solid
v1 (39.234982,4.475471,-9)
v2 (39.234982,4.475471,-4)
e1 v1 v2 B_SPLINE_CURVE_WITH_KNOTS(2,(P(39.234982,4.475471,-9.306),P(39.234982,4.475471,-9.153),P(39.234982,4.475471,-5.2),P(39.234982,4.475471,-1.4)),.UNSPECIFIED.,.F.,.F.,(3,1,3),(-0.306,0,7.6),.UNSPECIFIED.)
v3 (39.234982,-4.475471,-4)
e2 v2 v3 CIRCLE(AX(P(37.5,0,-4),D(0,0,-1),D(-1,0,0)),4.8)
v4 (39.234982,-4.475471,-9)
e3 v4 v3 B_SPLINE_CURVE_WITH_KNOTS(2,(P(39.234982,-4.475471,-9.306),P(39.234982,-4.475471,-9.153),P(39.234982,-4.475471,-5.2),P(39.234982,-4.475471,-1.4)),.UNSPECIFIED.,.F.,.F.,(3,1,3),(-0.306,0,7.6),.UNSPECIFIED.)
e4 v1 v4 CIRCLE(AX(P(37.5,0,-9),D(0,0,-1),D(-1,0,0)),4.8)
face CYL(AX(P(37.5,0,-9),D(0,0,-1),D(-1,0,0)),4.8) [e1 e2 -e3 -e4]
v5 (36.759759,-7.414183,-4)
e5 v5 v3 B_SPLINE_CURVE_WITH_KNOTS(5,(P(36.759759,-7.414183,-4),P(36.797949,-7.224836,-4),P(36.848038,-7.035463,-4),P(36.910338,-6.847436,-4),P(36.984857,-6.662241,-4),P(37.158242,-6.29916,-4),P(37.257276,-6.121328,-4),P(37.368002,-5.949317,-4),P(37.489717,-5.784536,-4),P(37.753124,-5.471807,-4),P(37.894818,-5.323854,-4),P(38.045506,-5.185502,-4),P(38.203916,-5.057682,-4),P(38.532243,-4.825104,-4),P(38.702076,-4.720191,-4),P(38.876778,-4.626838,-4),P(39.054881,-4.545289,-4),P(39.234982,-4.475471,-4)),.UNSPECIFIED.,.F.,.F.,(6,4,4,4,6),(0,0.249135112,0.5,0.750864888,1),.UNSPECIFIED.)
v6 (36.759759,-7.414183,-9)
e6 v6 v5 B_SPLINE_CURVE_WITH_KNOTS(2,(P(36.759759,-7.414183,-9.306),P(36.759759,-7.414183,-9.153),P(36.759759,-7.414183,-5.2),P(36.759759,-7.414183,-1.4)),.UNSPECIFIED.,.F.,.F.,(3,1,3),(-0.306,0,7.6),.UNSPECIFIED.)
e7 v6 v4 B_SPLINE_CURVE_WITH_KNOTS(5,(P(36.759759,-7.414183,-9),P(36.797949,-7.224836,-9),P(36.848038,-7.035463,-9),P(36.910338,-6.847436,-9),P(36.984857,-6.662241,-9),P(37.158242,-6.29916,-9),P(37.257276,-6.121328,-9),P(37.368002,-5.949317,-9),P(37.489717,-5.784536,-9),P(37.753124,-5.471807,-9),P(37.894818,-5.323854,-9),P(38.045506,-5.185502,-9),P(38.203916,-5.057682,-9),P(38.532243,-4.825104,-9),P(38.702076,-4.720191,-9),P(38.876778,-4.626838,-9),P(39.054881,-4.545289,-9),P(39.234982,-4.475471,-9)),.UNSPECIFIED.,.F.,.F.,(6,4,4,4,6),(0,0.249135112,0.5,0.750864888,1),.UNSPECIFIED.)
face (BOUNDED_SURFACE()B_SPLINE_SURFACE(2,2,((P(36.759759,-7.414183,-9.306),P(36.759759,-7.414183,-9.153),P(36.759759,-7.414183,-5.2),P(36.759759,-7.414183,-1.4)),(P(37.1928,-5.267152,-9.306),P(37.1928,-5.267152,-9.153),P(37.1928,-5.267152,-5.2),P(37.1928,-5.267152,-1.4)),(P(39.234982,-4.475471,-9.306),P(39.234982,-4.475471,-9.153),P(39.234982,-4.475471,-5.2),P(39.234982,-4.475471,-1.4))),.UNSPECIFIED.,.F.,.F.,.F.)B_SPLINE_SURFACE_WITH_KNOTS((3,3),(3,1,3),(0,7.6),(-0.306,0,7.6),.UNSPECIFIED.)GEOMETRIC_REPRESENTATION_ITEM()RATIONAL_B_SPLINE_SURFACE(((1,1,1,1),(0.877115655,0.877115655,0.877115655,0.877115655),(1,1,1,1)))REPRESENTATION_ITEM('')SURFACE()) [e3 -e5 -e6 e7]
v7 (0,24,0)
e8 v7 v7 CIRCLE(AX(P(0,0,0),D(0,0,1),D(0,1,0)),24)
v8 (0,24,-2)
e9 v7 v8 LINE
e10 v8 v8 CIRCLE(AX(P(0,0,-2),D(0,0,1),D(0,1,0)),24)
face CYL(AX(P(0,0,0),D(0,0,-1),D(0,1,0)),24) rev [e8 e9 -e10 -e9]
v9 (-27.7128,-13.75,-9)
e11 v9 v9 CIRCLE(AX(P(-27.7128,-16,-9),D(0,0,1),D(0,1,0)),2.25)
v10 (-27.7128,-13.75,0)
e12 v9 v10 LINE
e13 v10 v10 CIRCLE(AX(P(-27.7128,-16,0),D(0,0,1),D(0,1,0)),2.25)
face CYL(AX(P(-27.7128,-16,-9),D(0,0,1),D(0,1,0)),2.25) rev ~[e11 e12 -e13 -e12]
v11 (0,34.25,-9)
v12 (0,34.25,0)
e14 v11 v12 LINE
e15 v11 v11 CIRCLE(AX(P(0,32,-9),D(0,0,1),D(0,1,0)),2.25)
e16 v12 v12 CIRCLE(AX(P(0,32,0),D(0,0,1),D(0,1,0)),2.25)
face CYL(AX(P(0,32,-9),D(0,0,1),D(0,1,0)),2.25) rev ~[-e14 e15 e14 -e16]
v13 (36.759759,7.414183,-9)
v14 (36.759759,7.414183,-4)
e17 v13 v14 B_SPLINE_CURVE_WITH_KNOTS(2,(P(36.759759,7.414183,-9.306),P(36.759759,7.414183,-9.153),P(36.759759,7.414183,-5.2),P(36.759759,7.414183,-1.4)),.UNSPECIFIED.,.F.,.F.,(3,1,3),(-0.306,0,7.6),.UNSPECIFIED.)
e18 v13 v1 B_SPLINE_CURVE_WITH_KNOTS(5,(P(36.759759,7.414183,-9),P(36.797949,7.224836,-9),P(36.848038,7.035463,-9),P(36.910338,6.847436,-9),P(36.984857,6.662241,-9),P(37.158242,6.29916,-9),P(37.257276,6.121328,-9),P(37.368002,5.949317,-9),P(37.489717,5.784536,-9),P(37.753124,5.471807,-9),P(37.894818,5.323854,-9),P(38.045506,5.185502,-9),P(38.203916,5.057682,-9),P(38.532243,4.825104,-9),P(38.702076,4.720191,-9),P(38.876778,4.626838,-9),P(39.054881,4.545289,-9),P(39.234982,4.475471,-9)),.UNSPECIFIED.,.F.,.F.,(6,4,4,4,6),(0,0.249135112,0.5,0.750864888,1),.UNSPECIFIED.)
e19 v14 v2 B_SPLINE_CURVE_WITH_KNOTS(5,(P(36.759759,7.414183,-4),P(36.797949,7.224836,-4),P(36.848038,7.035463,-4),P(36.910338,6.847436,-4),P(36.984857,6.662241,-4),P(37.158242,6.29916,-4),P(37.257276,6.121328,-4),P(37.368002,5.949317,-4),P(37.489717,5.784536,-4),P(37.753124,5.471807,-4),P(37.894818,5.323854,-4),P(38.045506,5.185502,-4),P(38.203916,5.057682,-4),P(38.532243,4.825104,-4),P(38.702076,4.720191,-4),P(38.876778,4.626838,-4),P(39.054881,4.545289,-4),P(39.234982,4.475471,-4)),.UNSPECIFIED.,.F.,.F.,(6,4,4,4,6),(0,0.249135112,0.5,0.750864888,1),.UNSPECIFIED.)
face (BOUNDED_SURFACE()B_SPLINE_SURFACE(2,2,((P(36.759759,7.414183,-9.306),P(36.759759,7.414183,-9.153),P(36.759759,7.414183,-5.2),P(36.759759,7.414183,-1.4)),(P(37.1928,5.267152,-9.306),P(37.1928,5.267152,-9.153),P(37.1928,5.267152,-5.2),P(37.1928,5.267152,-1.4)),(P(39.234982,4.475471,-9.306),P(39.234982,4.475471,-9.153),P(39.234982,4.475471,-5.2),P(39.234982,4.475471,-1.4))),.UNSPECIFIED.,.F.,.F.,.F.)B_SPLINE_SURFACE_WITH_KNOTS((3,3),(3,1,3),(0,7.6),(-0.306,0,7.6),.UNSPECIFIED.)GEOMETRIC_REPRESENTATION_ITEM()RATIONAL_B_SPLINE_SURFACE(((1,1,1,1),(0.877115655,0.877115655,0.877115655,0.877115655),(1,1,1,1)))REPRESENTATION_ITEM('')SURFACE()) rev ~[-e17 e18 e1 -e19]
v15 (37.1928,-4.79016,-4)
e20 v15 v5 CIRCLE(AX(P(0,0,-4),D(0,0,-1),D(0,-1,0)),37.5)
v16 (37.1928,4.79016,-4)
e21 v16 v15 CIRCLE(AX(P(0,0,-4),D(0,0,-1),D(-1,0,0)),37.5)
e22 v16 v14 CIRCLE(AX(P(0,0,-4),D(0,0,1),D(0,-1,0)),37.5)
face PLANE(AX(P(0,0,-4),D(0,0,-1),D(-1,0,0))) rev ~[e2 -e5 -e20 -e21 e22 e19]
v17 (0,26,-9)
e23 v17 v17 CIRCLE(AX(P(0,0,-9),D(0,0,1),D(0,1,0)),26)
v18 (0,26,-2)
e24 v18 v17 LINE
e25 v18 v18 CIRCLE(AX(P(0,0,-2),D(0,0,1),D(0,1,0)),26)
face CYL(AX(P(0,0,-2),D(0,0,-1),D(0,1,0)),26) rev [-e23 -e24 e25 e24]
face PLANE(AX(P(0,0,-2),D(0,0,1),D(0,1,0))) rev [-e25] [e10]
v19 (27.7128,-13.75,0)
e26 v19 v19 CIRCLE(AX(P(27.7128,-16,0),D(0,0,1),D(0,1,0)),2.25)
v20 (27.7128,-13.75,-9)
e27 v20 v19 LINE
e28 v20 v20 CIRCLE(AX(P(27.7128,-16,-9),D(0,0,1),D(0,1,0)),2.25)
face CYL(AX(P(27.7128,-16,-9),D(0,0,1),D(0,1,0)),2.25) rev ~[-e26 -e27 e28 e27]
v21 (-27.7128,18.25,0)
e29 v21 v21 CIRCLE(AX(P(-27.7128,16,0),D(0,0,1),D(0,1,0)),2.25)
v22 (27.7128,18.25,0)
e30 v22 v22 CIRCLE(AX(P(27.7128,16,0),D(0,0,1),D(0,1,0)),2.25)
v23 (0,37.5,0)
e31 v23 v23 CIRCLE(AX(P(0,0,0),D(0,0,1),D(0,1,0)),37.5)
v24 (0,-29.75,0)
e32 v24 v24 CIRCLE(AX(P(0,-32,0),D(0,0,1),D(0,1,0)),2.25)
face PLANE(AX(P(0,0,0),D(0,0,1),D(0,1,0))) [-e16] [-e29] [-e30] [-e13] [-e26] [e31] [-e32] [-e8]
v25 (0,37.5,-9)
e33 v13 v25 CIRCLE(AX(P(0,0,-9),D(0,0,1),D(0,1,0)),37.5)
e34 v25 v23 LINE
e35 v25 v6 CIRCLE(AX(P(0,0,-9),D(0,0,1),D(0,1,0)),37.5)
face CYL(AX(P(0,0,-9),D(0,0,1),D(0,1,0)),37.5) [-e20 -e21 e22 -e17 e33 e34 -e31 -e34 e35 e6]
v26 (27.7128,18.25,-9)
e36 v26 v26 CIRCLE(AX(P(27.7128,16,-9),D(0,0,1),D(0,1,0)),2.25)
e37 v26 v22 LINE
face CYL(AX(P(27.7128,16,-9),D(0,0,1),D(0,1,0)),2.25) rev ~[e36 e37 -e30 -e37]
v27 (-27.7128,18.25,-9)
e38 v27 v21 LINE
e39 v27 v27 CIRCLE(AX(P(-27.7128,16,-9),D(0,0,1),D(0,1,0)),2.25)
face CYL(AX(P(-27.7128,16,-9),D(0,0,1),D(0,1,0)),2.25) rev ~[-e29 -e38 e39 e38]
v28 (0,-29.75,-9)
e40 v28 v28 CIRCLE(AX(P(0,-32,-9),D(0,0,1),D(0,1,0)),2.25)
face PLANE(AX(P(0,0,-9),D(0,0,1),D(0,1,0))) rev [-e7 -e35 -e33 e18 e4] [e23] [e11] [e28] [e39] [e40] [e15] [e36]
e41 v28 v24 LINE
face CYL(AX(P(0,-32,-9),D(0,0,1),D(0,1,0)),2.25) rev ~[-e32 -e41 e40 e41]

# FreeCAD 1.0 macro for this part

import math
import FreeCAD as App
import Part
import Sketcher
from FreeCAD import Vector
Q = App.Units.Quantity


def edges_at(feature, points):
    """Names of the edges that pass closest to the given points."""
    edges = feature.Shape.Edges
    near = lambda p: min(range(len(edges)), key=lambda i: edges[i].distToShape(Part.Vertex(*p))[0])
    return sorted({f"Edge{near(p) + 1}" for p in points})


def add_polygon(sketch, points):
    """Adds a closed chain of lines whose ends are joined by coincident constraints."""
    first, n = sketch.GeometryCount, len(points)
    for a, b in zip(points, points[1:] + points[:1]):
        sketch.addGeometry(Part.LineSegment(App.Vector(*a, 0), App.Vector(*b, 0)), False)
    for i in range(n):
        sketch.addConstraint(Sketcher.Constraint("Coincident", first + i, 2, first + (i + 1) % n, 1))

doc = App.newDocument("Part")
body = doc.addObject("PartDesign::Body", "Body")

sketch1 = body.newObject("Sketcher::SketchObject", "Sketch")
sketch1.AttachmentSupport = (doc.getObject("YZ_Plane"), [""])
sketch1.MapMode = "FlatFace"
add_polygon(sketch1, [(37.5, 0), (24, 0), (24, -2), (26, -2), (26, -9), (37.5, -9)])
sketch1.addConstraint([
    Sketcher.Constraint("Horizontal", 0),
    Sketcher.Constraint("Vertical", 1),
    Sketcher.Constraint("Horizontal", 2),
    Sketcher.Constraint("Vertical", 3),
    Sketcher.Constraint("Horizontal", 4),
    Sketcher.Constraint("Vertical", 5),
    Sketcher.Constraint("PointOnObject", 0, 2, -1),
    Sketcher.Constraint("Equal", 2, 1),
    Sketcher.Constraint("DistanceX", 2, 1, 2, 2, Q("2 mm")),
    Sketcher.Constraint("DistanceY", 3, 2, 3, 1, Q("7 mm")),
    Sketcher.Constraint("DistanceX", -1, 1, 2, 2, Q("26 mm")),
    Sketcher.Constraint("DistanceX", -1, 1, 4, 2, Q("37.5 mm")),
])
revolution = body.newObject("PartDesign::Revolution", "Revolution")
revolution.Profile = sketch1
revolution.ReferenceAxis = (sketch1, ["V_Axis"])
revolution.Angle = 360

sketch2 = body.newObject("Sketcher::SketchObject", "Sketch001")
sketch2.AttachmentSupport = (doc.getObject("XY_Plane"), [""])
sketch2.MapMode = "FlatFace"
sketch2.AttachmentOffset = App.Placement(Vector(0, 0, -9), App.Rotation())
sketch2.addGeometry([
    Part.Circle(Vector(0, 32, 0), Vector(0, 0, 1), 2.25),
    Part.Circle(Vector(27.7128, 16, 0), Vector(0, 0, 1), 2.25),
    Part.Circle(Vector(27.7128, -16, 0), Vector(0, 0, 1), 2.25),
    Part.Circle(Vector(0, -32, 0), Vector(0, 0, 1), 2.25),
    Part.Circle(Vector(-27.7128, -16, 0), Vector(0, 0, 1), 2.25),
    Part.Circle(Vector(-27.7128, 16, 0), Vector(0, 0, 1), 2.25),
], False)
sketch2.addConstraint([
    Sketcher.Constraint("Equal", 0, 1),
    Sketcher.Constraint("Equal", 1, 2),
    Sketcher.Constraint("Equal", 2, 3),
    Sketcher.Constraint("Equal", 3, 4),
    Sketcher.Constraint("Equal", 4, 5),
    Sketcher.Constraint("Symmetric", 0, 3, 3, 3, -1, 1),
    Sketcher.Constraint("Symmetric", 1, 3, 4, 3, -1, 1),
    Sketcher.Constraint("Symmetric", 2, 3, 5, 3, -1, 1),
    Sketcher.Constraint("Symmetric", 2, 3, 4, 3, -2),
    Sketcher.Constraint("PointOnObject", 0, 3, -2),
    Sketcher.Constraint("Diameter", 0, Q("4.5 mm")),
    Sketcher.Constraint("DistanceY", -1, 1, 0, 3, Q("32 mm")),
    Sketcher.Constraint("DistanceY", -1, 1, 1, 3, Q("16 mm")),
    Sketcher.Constraint("DistanceX", -1, 1, 1, 3, Q("27.7128 mm")),
])
doc.recompute()
hole = body.newObject("PartDesign::Hole", "Hole")
hole.Profile = sketch2
hole.ThreadType = "None"
hole.Diameter = 4.5
hole.DepthType = "ThroughAll"
hole.Reversed = True

sketch3 = body.newObject("Sketcher::SketchObject", "Sketch002")
sketch3.AttachmentSupport = (doc.getObject("XY_Plane"), [""])
sketch3.MapMode = "FlatFace"
sketch3.AttachmentOffset = App.Placement(Vector(0, 0, -9), App.Rotation())
sketch3.addGeometry([
    Part.ArcOfCircle(Part.Circle(Vector(0, 0, 0), Vector(0, 0, 1), 37.5), math.radians(-7.338876), math.radians(7.338876)),
    Part.ArcOfCircle(Part.Circle(Vector(37.5, 0, 0), Vector(0, 0, 1), 4.8), math.radians(-93.669438), math.radians(93.669438)),
], False)
sketch3.addConstraint([
    Sketcher.Constraint("Coincident", 0, 1, 1, 1),
    Sketcher.Constraint("Coincident", 1, 2, 0, 2),
    Sketcher.Constraint("Coincident", 0, 3, -1, 1),
    Sketcher.Constraint("PointOnObject", 1, 3, -1),
    Sketcher.Constraint("Radius", 1, Q("4.8 mm")),
    Sketcher.Constraint("Radius", 0, Q("37.5 mm")),
    Sketcher.Constraint("DistanceX", -1, 1, 1, 3, Q("37.5 mm")),
])
pad1 = body.newObject("PartDesign::Pad", "Pad")
pad1.Profile = sketch3
pad1.Length = 5
doc.recompute()

fillet = body.newObject("PartDesign::Fillet", "Fillet")
fillet.Base = (pad1, edges_at(pad1, [(37.193, 4.79, -6.5), (37.193, -4.79, -6.5)]))
fillet.Radius = 4

doc.recompute()
